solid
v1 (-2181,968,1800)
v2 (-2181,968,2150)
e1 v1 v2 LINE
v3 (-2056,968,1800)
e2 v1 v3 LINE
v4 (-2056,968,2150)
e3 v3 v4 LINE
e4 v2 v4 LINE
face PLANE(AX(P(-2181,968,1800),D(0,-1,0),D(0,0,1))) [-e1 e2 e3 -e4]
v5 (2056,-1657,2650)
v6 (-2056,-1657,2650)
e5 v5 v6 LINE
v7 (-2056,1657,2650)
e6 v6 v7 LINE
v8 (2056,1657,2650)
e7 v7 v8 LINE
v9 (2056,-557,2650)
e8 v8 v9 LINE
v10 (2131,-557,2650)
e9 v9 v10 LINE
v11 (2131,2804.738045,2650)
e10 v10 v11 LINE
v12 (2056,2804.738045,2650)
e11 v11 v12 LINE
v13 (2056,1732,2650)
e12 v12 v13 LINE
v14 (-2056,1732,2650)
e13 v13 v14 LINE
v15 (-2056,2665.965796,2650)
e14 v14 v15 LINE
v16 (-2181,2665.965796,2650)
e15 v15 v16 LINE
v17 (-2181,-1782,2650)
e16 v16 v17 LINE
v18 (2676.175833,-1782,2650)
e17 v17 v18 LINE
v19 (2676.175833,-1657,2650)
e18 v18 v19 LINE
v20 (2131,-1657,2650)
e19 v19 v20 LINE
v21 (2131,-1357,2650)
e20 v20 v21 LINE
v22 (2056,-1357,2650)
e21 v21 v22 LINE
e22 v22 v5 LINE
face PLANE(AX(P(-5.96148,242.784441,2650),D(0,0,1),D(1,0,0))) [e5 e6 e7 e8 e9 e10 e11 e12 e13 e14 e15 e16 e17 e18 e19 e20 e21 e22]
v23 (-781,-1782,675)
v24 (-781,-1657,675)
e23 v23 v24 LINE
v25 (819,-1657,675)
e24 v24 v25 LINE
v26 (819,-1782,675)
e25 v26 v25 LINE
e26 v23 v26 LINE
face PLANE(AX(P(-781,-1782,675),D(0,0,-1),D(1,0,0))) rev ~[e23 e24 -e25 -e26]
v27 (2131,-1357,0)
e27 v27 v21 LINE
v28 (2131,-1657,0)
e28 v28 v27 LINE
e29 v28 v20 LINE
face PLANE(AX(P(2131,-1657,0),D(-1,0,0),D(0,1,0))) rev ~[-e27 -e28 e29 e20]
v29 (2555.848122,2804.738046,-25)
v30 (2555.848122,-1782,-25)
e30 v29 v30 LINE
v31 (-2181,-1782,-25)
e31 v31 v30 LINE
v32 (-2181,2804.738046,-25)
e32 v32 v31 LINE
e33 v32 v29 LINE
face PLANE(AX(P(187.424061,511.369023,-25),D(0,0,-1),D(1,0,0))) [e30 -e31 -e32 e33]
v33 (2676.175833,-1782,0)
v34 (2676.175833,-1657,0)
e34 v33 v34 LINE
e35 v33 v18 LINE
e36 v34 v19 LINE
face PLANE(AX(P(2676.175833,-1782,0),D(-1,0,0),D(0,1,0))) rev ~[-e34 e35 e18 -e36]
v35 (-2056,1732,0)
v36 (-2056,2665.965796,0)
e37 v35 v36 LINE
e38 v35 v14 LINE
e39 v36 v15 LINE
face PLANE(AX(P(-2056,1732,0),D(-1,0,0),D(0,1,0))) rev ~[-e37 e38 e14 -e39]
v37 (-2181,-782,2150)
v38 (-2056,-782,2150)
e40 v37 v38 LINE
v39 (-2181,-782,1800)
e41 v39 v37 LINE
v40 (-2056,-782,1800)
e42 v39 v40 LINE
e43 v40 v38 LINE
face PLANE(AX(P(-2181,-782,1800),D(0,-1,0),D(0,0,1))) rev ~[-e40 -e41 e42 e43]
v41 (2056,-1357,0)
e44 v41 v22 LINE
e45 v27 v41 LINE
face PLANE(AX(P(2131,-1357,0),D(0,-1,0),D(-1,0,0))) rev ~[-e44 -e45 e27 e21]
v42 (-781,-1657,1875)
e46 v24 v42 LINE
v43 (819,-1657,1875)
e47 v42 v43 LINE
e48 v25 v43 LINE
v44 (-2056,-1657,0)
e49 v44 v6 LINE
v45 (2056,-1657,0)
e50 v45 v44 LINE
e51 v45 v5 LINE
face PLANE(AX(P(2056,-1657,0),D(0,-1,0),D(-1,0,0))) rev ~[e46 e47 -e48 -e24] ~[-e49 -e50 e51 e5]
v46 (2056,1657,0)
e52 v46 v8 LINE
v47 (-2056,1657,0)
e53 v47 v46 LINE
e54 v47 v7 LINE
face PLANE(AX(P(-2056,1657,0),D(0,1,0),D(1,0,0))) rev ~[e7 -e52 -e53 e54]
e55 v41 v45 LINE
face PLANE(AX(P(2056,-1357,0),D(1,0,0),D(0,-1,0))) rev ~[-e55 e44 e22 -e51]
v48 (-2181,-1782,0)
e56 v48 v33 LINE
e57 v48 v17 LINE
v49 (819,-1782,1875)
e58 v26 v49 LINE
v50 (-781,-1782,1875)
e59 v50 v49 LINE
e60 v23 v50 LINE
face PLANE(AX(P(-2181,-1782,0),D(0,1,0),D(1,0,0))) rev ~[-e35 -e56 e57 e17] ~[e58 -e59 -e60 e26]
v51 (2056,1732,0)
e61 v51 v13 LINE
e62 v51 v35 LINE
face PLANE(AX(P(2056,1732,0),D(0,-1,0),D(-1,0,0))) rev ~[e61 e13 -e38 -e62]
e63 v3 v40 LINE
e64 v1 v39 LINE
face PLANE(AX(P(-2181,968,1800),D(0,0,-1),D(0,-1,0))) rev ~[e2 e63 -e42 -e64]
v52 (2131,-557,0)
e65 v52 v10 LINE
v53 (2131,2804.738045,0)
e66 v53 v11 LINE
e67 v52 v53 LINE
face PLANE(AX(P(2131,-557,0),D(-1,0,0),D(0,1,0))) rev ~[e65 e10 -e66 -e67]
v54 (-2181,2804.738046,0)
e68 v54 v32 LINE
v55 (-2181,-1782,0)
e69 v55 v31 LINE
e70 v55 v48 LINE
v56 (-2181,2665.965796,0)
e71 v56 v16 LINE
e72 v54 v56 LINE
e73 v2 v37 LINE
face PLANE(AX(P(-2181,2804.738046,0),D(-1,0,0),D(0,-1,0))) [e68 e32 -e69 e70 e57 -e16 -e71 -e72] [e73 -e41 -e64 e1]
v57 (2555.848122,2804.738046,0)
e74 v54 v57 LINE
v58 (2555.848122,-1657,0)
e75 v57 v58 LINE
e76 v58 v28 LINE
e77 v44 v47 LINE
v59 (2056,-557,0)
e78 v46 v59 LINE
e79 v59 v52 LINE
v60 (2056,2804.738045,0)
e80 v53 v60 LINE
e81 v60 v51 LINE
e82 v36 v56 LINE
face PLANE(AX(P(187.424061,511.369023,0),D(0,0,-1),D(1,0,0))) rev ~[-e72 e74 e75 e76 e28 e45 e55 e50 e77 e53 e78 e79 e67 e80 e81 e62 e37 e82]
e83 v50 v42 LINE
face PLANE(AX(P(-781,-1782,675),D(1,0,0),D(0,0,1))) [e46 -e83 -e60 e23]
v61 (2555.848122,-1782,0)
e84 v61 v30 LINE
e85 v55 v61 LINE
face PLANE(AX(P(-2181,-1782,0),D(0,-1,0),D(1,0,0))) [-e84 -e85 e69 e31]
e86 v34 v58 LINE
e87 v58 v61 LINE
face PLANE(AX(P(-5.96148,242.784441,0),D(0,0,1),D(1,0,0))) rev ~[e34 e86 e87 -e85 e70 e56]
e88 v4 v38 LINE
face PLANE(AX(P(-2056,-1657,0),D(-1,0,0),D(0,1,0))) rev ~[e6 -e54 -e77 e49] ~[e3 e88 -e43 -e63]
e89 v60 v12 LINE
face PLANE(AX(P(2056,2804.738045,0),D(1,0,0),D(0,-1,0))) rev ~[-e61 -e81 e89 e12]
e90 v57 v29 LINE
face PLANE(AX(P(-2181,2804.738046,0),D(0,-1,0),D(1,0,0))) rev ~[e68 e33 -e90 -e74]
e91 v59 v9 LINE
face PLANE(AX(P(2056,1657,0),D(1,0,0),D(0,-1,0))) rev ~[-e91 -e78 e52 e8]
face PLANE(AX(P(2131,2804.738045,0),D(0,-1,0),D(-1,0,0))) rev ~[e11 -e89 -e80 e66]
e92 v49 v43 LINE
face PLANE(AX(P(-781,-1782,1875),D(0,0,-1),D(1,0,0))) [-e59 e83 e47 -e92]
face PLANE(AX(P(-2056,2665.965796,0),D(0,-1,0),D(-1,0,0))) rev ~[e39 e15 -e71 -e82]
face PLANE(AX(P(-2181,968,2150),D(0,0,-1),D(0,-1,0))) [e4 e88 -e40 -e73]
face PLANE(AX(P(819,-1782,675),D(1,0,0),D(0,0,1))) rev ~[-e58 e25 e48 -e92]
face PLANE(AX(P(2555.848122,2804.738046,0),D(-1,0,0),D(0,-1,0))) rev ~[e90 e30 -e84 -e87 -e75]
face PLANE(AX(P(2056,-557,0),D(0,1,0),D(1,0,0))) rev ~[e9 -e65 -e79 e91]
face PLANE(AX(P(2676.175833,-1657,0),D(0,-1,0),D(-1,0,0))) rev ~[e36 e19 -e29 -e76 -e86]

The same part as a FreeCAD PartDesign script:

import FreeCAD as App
import Part
import Sketcher
from FreeCAD import Vector

doc = App.newDocument("Part")
params = doc.addObject("Spreadsheet::Sheet", "Params")
for row, (alias, value) in enumerate([
    ("sketch1_width", "4112 mm"),
    ("sketch1_width2", "75 mm"),
    ("sketch1_width3", "125 mm"),
    ("sketch1_height", "300 mm"),
    ("sketch1_height2", "3314 mm"),
    ("pad1_length", "2650 mm"),
    ("pad2_length", "25 mm"),
    ("sketch3_width", "1600 mm"),
    ("sketch3_height", "1200 mm"),
    ("pocket1_length", "125 mm"),
    ("sketch4_width", "1750 mm"),
    ("sketch4_height", "350 mm"),
    ("pocket2_length", "125 mm"),
], start=1):
    params.set(f"A{row}", alias)
    params.set(f"B{row}", "=" + value)
    params.setAlias(f"B{row}", alias)

body = doc.addObject("PartDesign::Body", "Body")

# Sketch on XY plane
sketch1 = doc.addObject("Sketcher::SketchObject", "Sketch")
body.addObject(sketch1)
sketch1.AttachmentSupport = (doc.XY_Plane, [""])
sketch1.MapMode = "FlatFace"
sketch1.addGeometry([
    Part.LineSegment(Vector(2056, -1357, 0), Vector(2056, -1657, 0)),  # 0
    Part.LineSegment(Vector(2056, -1657, 0), Vector(-2056, -1657, 0)),  # 1
    Part.LineSegment(Vector(-2056, -1657, 0), Vector(-2056, 1657, 0)),  # 2
    Part.LineSegment(Vector(-2056, 1657, 0), Vector(2056, 1657, 0)),  # 3
    Part.LineSegment(Vector(2056, 1657, 0), Vector(2056, -557, 0)),  # 4
    Part.LineSegment(Vector(2056, -557, 0), Vector(2131, -557, 0)),  # 5
    Part.LineSegment(Vector(2131, -557, 0), Vector(2131, 2805, 0)),  # 6
    Part.LineSegment(Vector(2131, 2805, 0), Vector(2056, 2805, 0)),  # 7
    Part.LineSegment(Vector(2056, 2805, 0), Vector(2056, 1732, 0)),  # 8
    Part.LineSegment(Vector(2056, 1732, 0), Vector(-2056, 1732, 0)),  # 9
    Part.LineSegment(Vector(-2056, 1732, 0), Vector(-2056, 2666, 0)),  # 10
    Part.LineSegment(Vector(-2056, 2666, 0), Vector(-2181, 2666, 0)),  # 11
    Part.LineSegment(Vector(-2181, 2666, 0), Vector(-2181, -1782, 0)),  # 12
    Part.LineSegment(Vector(-2181, -1782, 0), Vector(2676, -1782, 0)),  # 13
    Part.LineSegment(Vector(2676, -1782, 0), Vector(2676, -1657, 0)),  # 14
    Part.LineSegment(Vector(2676, -1657, 0), Vector(2131, -1657, 0)),  # 15
    Part.LineSegment(Vector(2131, -1657, 0), Vector(2131, -1357, 0)),  # 16
    Part.LineSegment(Vector(2131, -1357, 0), Vector(2056, -1357, 0)),  # 17
], False)
sketch1.addConstraint([
    Sketcher.Constraint("Coincident", 0, 2, 1, 1),
    Sketcher.Constraint("Coincident", 1, 2, 2, 1),
    Sketcher.Constraint("Coincident", 2, 2, 3, 1),
    Sketcher.Constraint("Coincident", 3, 2, 4, 1),
    Sketcher.Constraint("Coincident", 4, 2, 5, 1),
    Sketcher.Constraint("Coincident", 5, 2, 6, 1),
    Sketcher.Constraint("Coincident", 6, 2, 7, 1),
    Sketcher.Constraint("Coincident", 7, 2, 8, 1),
    Sketcher.Constraint("Coincident", 8, 2, 9, 1),
    Sketcher.Constraint("Coincident", 9, 2, 10, 1),
    Sketcher.Constraint("Coincident", 10, 2, 11, 1),
    Sketcher.Constraint("Coincident", 11, 2, 12, 1),
    Sketcher.Constraint("Coincident", 12, 2, 13, 1),
    Sketcher.Constraint("Coincident", 13, 2, 14, 1),
    Sketcher.Constraint("Coincident", 14, 2, 15, 1),
    Sketcher.Constraint("Coincident", 15, 2, 16, 1),
    Sketcher.Constraint("Coincident", 16, 2, 17, 1),
    Sketcher.Constraint("Coincident", 17, 2, 0, 1),
    Sketcher.Constraint("Vertical", 0),
    Sketcher.Constraint("Horizontal", 1),
    Sketcher.Constraint("Vertical", 2),
    Sketcher.Constraint("Horizontal", 3),
    Sketcher.Constraint("Vertical", 4),
    Sketcher.Constraint("Horizontal", 5),
    Sketcher.Constraint("Vertical", 6),
    Sketcher.Constraint("Horizontal", 7),
    Sketcher.Constraint("Vertical", 8),
    Sketcher.Constraint("Horizontal", 9),
    Sketcher.Constraint("Vertical", 10),
    Sketcher.Constraint("Horizontal", 11),
    Sketcher.Constraint("Vertical", 12),
    Sketcher.Constraint("Horizontal", 13),
    Sketcher.Constraint("Vertical", 14),
    Sketcher.Constraint("Horizontal", 15),
    Sketcher.Constraint("Vertical", 16),
    Sketcher.Constraint("Horizontal", 17),
    Sketcher.Constraint("Symmetric", 0, 2, 2, 2, -1, 1),
    Sketcher.Constraint("Horizontal", 1, 2, 14, 2),
    Sketcher.Constraint("Vertical", 0, 2, 3, 2),
    Sketcher.Constraint("Vertical", 4, 2, 7, 2),
    Sketcher.Constraint("Vertical", 2, 2, 9, 2),
    Sketcher.Constraint("Vertical", 6, 2, 15, 2),
    Sketcher.Constraint("Equal", 11, 14),
    Sketcher.Constraint("DistanceX", 1, 2, 1, 1, 4112.0),
    Sketcher.Constraint("DistanceX", 5, 1, 5, 2, 75.0),
    Sketcher.Constraint("DistanceX", 11, 2, 11, 1, 125.0),
    Sketcher.Constraint("DistanceY", 0, 2, 0, 1, 300.0),
    Sketcher.Constraint("DistanceY", 2, 1, 2, 2, 3314.0),
    Sketcher.Constraint("DistanceY", 4, 2, 4, 1, 2214.0),
    Sketcher.Constraint("DistanceY", -1, 1, 8, 2, 1732.0),
    Sketcher.Constraint("DistanceX", 13, 1, 13, 2, 4857.175833),
    Sketcher.Constraint("DistanceY", 6, 1, 6, 2, 3361.738045),
    Sketcher.Constraint("DistanceY", 10, 1, 10, 2, 933.965796),
])
sketch1.setExpression("Constraints[43]", "Params.sketch1_width")
sketch1.setExpression("Constraints[44]", "Params.sketch1_width2")
sketch1.setExpression("Constraints[45]", "Params.sketch1_width3")
sketch1.setExpression("Constraints[46]", "Params.sketch1_height")
sketch1.setExpression("Constraints[47]", "Params.sketch1_height2")
pad1 = doc.addObject("PartDesign::Pad", "Pad")
body.addObject(pad1)
pad1.Profile = sketch1
pad1.setExpression("Length", "Params.pad1_length")

# Sketch on XY plane
sketch2 = doc.addObject("Sketcher::SketchObject", "Sketch001")
body.addObject(sketch2)
sketch2.AttachmentSupport = (doc.XY_Plane, [""])
sketch2.MapMode = "FlatFace"
sketch2.addGeometry([
    Part.LineSegment(Vector(-2181, -1782, 0), Vector(-2181, 2805, 0)),
    Part.LineSegment(Vector(-2181, 2805, 0), Vector(2556, 2805, 0)),
    Part.LineSegment(Vector(2556, 2805, 0), Vector(2556, -1782, 0)),
    Part.LineSegment(Vector(2556, -1782, 0), Vector(-2181, -1782, 0)),
], False)
sketch2.addConstraint([
    Sketcher.Constraint("Coincident", 0, 2, 1, 1),
    Sketcher.Constraint("Coincident", 1, 2, 2, 1),
    Sketcher.Constraint("Coincident", 2, 2, 3, 1),
    Sketcher.Constraint("Coincident", 3, 2, 0, 1),
    Sketcher.Constraint("Vertical", 0),
    Sketcher.Constraint("Horizontal", 1),
    Sketcher.Constraint("Vertical", 2),
    Sketcher.Constraint("Horizontal", 3),
    Sketcher.Constraint("DistanceX", 0, 2, -1, 1, 2181.0),
    Sketcher.Constraint("DistanceY", 2, 2, -1, 1, 1782.0),
    Sketcher.Constraint("DistanceX", 1, 1, 1, 2, 4736.848122),
    Sketcher.Constraint("DistanceY", 0, 1, 0, 2, 4586.738045),
])
pad2 = doc.addObject("PartDesign::Pad", "Pad001")
body.addObject(pad2)
pad2.Profile = sketch2
pad2.setExpression("Length", "Params.pad2_length")
pad2.Reversed = True

# Sketch on XZ plane
sketch3 = doc.addObject("Sketcher::SketchObject", "Sketch002")
body.addObject(sketch3)
sketch3.AttachmentSupport = (doc.XZ_Plane, [""])
sketch3.MapMode = "FlatFace"
sketch3.AttachmentOffset = App.Placement(Vector(0, 0, 1782), App.Rotation())
sketch3.addGeometry([
    Part.LineSegment(Vector(-781, 1875, 0), Vector(-781, 675, 0)),
    Part.LineSegment(Vector(-781, 675, 0), Vector(819, 675, 0)),
    Part.LineSegment(Vector(819, 675, 0), Vector(819, 1875, 0)),
    Part.LineSegment(Vector(819, 1875, 0), Vector(-781, 1875, 0)),
], False)
sketch3.addConstraint([
    Sketcher.Constraint("Coincident", 0, 2, 1, 1),
    Sketcher.Constraint("Coincident", 1, 2, 2, 1),
    Sketcher.Constraint("Coincident", 2, 2, 3, 1),
    Sketcher.Constraint("Coincident", 3, 2, 0, 1),
    Sketcher.Constraint("Vertical", 0),
    Sketcher.Constraint("Horizontal", 1),
    Sketcher.Constraint("Vertical", 2),
    Sketcher.Constraint("Horizontal", 3),
    Sketcher.Constraint("DistanceX", 1, 1, 1, 2, 1600.0),
    Sketcher.Constraint("DistanceY", 0, 2, 0, 1, 1200.0),
    Sketcher.Constraint("DistanceX", 0, 2, -1, 1, 781.0),
    Sketcher.Constraint("DistanceY", -1, 1, 0, 2, 675.0),
])
sketch3.setExpression("Constraints[8]", "Params.sketch3_width")
sketch3.setExpression("Constraints[9]", "Params.sketch3_height")
pocket1 = doc.addObject("PartDesign::Pocket", "Pocket")
body.addObject(pocket1)
pocket1.Profile = sketch3
pocket1.setExpression("Length", "Params.pocket1_length")

# Sketch on YZ plane
sketch4 = doc.addObject("Sketcher::SketchObject", "Sketch003")
body.addObject(sketch4)
sketch4.AttachmentSupport = (doc.YZ_Plane, [""])
sketch4.MapMode = "FlatFace"
sketch4.AttachmentOffset = App.Placement(Vector(0, 0, -2181), App.Rotation())
sketch4.addGeometry([
    Part.LineSegment(Vector(968, 2150, 0), Vector(968, 1800, 0)),
    Part.LineSegment(Vector(968, 1800, 0), Vector(-782, 1800, 0)),
    Part.LineSegment(Vector(-782, 1800, 0), Vector(-782, 2150, 0)),
    Part.LineSegment(Vector(-782, 2150, 0), Vector(968, 2150, 0)),
], False)
sketch4.addConstraint([
    Sketcher.Constraint("Coincident", 0, 2, 1, 1),
    Sketcher.Constraint("Coincident", 1, 2, 2, 1),
    Sketcher.Constraint("Coincident", 2, 2, 3, 1),
    Sketcher.Constraint("Coincident", 3, 2, 0, 1),
    Sketcher.Constraint("Vertical", 0),
    Sketcher.Constraint("Horizontal", 1),
    Sketcher.Constraint("Vertical", 2),
    Sketcher.Constraint("Horizontal", 3),
    Sketcher.Constraint("DistanceX", 1, 2, 1, 1, 1750.0),
    Sketcher.Constraint("DistanceY", 0, 2, 0, 1, 350.0),
    Sketcher.Constraint("DistanceX", -1, 1, 0, 2, 968.0),
    Sketcher.Constraint("DistanceY", -1, 1, 0, 2, 1800.0),
])
sketch4.setExpression("Constraints[8]", "Params.sketch4_width")
sketch4.setExpression("Constraints[9]", "Params.sketch4_height")
pocket2 = doc.addObject("PartDesign::Pocket", "Pocket001")
body.addObject(pocket2)
pocket2.Profile = sketch4
pocket2.setExpression("Length", "Params.pocket2_length")
pocket2.Reversed = True

doc.recompute()
